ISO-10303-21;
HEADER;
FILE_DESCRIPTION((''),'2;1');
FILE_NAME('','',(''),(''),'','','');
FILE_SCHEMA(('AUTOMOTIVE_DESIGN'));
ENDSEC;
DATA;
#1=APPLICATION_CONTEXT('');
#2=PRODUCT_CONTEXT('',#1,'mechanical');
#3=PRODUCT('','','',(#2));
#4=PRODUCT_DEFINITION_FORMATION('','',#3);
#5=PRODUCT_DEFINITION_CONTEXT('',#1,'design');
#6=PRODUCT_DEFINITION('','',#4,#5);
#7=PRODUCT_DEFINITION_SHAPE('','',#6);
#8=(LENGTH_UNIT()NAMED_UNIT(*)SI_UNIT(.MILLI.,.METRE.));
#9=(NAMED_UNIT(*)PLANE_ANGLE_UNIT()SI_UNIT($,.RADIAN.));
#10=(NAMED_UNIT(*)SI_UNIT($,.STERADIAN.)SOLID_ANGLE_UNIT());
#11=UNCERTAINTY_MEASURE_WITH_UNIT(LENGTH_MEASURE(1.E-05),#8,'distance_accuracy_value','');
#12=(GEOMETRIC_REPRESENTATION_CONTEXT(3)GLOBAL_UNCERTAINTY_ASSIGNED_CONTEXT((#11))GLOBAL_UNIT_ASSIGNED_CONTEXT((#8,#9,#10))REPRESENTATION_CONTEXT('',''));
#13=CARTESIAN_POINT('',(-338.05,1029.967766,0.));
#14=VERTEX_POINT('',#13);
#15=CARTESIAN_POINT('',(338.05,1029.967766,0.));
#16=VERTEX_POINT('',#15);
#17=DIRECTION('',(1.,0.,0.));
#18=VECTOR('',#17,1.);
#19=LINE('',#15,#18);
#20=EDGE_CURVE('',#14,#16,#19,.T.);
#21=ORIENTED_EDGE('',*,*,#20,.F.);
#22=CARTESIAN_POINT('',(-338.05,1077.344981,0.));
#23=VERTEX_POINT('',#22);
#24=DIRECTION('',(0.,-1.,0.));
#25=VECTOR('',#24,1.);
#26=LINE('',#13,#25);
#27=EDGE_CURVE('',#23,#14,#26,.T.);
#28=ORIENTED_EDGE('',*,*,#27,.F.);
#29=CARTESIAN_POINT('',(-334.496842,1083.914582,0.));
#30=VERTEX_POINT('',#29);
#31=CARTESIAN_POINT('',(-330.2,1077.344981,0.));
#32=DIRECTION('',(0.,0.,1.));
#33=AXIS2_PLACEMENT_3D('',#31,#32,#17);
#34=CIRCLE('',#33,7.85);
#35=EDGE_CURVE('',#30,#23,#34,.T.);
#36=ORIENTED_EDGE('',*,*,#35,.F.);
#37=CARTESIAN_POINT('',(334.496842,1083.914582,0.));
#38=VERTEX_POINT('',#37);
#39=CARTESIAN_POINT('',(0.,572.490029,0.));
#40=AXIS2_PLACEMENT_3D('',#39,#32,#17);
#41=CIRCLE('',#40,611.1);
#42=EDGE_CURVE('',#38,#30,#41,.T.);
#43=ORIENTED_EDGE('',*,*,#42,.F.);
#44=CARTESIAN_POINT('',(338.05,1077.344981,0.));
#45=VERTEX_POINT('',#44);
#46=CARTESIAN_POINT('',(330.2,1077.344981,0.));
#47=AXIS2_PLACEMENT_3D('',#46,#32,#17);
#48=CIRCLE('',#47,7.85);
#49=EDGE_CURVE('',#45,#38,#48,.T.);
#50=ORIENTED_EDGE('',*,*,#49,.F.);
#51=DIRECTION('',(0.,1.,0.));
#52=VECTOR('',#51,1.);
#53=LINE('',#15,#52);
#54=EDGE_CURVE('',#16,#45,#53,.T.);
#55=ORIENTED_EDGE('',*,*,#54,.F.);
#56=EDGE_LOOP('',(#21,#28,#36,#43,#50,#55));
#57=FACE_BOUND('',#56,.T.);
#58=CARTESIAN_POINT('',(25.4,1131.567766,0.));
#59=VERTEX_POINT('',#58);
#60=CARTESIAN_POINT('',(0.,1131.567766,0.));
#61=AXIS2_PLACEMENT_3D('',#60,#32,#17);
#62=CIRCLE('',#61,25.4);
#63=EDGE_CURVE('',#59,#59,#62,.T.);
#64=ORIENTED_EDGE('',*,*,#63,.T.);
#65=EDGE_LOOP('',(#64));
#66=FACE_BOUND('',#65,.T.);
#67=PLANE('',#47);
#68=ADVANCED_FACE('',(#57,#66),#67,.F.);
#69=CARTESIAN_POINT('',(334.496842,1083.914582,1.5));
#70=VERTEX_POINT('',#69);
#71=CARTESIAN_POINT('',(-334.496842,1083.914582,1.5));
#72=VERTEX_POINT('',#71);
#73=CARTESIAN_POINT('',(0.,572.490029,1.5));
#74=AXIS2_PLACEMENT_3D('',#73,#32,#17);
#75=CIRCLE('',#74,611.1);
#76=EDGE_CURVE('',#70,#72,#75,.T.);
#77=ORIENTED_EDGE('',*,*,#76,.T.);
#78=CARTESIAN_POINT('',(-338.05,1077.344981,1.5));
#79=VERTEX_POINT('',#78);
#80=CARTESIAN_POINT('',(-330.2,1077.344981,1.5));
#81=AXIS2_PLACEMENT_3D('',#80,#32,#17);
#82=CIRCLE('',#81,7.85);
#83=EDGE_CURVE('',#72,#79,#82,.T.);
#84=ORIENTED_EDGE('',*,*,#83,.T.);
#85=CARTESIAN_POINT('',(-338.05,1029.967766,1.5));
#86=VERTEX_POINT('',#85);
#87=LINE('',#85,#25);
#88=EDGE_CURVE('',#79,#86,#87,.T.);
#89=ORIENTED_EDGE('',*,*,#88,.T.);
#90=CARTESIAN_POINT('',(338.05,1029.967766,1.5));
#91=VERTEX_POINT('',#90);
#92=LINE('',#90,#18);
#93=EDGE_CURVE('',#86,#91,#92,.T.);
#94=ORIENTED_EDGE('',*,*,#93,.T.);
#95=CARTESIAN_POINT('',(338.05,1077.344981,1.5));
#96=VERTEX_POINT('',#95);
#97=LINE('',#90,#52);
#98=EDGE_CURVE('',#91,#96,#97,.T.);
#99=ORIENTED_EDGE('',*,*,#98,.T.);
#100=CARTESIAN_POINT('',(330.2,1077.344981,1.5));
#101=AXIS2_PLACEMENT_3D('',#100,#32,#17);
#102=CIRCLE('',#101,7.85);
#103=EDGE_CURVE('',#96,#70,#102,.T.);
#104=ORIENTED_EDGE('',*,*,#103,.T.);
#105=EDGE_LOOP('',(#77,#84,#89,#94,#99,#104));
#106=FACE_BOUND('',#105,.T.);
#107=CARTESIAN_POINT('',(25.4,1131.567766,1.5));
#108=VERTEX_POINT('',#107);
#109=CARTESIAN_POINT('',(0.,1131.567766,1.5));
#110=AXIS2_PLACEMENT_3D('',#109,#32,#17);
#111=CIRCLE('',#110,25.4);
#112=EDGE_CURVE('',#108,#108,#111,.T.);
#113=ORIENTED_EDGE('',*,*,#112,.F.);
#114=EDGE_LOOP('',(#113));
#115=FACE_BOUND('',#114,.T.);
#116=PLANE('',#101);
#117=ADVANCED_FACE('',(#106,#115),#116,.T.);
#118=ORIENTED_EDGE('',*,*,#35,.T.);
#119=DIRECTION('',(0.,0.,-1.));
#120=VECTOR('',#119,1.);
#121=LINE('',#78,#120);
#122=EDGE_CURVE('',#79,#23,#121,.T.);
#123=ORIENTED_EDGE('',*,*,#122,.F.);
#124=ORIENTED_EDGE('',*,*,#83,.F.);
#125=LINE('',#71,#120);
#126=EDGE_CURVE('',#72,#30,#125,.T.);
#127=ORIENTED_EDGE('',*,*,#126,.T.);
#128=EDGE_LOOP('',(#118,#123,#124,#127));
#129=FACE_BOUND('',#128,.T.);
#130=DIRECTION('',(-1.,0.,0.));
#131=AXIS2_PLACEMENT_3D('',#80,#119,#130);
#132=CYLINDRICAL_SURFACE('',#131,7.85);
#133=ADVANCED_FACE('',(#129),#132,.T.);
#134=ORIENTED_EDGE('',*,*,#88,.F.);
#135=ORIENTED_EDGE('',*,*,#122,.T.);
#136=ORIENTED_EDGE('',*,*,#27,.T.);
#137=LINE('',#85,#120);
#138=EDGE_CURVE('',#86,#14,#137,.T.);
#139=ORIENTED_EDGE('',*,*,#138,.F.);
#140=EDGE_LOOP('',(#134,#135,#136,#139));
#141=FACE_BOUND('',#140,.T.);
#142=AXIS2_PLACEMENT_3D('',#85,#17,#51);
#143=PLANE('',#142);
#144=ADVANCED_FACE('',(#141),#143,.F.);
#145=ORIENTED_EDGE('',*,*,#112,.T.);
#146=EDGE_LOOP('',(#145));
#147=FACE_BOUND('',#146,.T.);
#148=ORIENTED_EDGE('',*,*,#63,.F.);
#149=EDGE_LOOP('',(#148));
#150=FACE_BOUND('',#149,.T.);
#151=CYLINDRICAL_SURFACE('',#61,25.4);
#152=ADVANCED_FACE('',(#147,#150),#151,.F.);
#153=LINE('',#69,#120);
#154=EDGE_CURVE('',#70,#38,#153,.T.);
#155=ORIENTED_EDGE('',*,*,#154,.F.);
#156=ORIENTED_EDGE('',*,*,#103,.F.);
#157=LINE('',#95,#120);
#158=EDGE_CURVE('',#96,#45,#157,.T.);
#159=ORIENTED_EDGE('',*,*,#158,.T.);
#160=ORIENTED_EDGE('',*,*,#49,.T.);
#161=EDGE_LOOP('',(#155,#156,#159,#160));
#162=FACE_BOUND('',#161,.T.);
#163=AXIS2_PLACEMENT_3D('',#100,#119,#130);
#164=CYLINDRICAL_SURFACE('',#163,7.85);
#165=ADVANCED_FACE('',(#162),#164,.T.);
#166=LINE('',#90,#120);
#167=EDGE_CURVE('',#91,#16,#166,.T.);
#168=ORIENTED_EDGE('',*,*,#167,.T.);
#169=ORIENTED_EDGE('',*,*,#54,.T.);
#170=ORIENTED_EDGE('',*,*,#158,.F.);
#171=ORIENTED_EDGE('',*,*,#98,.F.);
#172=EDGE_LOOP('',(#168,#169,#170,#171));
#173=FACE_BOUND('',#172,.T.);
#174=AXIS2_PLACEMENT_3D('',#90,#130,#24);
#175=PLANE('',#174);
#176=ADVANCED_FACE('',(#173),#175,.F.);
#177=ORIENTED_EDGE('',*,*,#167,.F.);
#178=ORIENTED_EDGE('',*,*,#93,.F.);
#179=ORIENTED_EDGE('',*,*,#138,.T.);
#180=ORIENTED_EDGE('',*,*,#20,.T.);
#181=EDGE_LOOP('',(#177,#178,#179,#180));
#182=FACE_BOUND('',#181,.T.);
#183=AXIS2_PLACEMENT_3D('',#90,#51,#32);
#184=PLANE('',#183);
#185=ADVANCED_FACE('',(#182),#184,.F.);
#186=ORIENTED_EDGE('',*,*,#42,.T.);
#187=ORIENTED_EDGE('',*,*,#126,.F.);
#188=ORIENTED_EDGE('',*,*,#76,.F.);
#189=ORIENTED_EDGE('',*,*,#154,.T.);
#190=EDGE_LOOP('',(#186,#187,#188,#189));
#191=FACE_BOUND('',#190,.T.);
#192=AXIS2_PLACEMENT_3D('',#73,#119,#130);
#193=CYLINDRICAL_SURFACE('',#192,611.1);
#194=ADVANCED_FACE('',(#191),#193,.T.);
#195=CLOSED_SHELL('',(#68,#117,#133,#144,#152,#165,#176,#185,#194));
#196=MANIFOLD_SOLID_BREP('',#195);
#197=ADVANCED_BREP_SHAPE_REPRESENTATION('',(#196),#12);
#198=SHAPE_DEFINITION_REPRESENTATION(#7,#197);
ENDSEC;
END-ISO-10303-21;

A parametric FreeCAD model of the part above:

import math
import FreeCAD as App
import Part
import Sketcher

doc = App.newDocument("Part")
params = doc.addObject("Spreadsheet::Sheet", "Params")
for row, (alias, value) in enumerate([
    ("sketch1_radius", "611.1 mm"),
    ("sketch1_radius2", "7.85 mm"),
    ("sketch1_width", "676.1 mm"),
    ("pad1_length", "1.5 mm"),
    ("sketch2_diameter", "50.8 mm"),
], start=1):
    params.set(f"A{row}", alias)
    params.set(f"B{row}", "=" + value)
    params.setAlias(f"B{row}", alias)

body = doc.addObject("PartDesign::Body", "Body")

sketch1 = body.newObject("Sketcher::SketchObject", "Sketch")
sketch1.AttachmentSupport = (doc.getObject("XY_Plane"), [""])
sketch1.MapMode = "FlatFace"
sketch1.addGeometry([
    Part.LineSegment(App.Vector(-338, 1077, 0), App.Vector(-338, 1030, 0)),
    Part.LineSegment(App.Vector(-338, 1030, 0), App.Vector(338, 1030, 0)),
    Part.LineSegment(App.Vector(338, 1030, 0), App.Vector(338, 1077, 0)),
    Part.ArcOfCircle(Part.Circle(App.Vector(330, 1077, 0), App.Vector(0, 0, 1), 8), math.radians(0), math.radians(57)),
    Part.ArcOfCircle(Part.Circle(App.Vector(0, 572, 0), App.Vector(0, 0, 1), 611), math.radians(57), math.radians(123)),
    Part.ArcOfCircle(Part.Circle(App.Vector(-330, 1077, 0), App.Vector(0, 0, 1), 8), math.radians(123), math.radians(180)),
], False)
sketch1.addConstraint([
    Sketcher.Constraint("Coincident", 0, 2, 1, 1),
    Sketcher.Constraint("Coincident", 1, 2, 2, 1),
    Sketcher.Constraint("Tangent", 2, 2, 3, 1),
    Sketcher.Constraint("Tangent", 3, 2, 4, 1),
    Sketcher.Constraint("Tangent", 4, 2, 5, 1),
    Sketcher.Constraint("Tangent", 5, 2, 0, 1),
    Sketcher.Constraint("Vertical", 0),
    Sketcher.Constraint("Horizontal", 1),
    Sketcher.Constraint("Vertical", 2),
    Sketcher.Constraint("Equal", 3, 5),
    Sketcher.Constraint("Symmetric", 3, 3, 5, 3, -2),
    Sketcher.Constraint("Radius", 4, 611.1),
    Sketcher.Constraint("Radius", 3, 7.85),
    Sketcher.Constraint("DistanceX", 1, 1, 1, 2, 676.1),
    Sketcher.Constraint("DistanceY", 0, 2, 0, 1, 47.377215),
    Sketcher.Constraint("DistanceY", -1, 1, 3, 3, 1077.344981),
])
sketch1.setExpression("Constraints[11]", "Params.sketch1_radius")
sketch1.setExpression("Constraints[12]", "Params.sketch1_radius2")
sketch1.setExpression("Constraints[13]", "Params.sketch1_width")
pad1 = body.newObject("PartDesign::Pad", "Pad")
pad1.Profile = sketch1
pad1.setExpression("Length", "Params.pad1_length")

sketch2 = body.newObject("Sketcher::SketchObject", "Sketch001")
sketch2.AttachmentSupport = (doc.getObject("XY_Plane"), [""])
sketch2.MapMode = "FlatFace"
sketch2.AttachmentOffset = App.Placement(App.Vector(0, 0, 1.5), App.Rotation())
sketch2.addGeometry(Part.Circle(App.Vector(0, 1132, 0), App.Vector(0, 0, 1), 25), False)
sketch2.addConstraint([
    Sketcher.Constraint("PointOnObject", 0, 3, -2),
    Sketcher.Constraint("Diameter", 0, 50.8),
    Sketcher.Constraint("DistanceY", -1, 1, 0, 3, 1131.567766),
])
sketch2.setExpression("Constraints[1]", "Params.sketch2_diameter")
pocket1 = body.newObject("PartDesign::Pocket", "Pocket")
pocket1.Profile = sketch2
pocket1.Type = "ThroughAll"

doc.recompute()
